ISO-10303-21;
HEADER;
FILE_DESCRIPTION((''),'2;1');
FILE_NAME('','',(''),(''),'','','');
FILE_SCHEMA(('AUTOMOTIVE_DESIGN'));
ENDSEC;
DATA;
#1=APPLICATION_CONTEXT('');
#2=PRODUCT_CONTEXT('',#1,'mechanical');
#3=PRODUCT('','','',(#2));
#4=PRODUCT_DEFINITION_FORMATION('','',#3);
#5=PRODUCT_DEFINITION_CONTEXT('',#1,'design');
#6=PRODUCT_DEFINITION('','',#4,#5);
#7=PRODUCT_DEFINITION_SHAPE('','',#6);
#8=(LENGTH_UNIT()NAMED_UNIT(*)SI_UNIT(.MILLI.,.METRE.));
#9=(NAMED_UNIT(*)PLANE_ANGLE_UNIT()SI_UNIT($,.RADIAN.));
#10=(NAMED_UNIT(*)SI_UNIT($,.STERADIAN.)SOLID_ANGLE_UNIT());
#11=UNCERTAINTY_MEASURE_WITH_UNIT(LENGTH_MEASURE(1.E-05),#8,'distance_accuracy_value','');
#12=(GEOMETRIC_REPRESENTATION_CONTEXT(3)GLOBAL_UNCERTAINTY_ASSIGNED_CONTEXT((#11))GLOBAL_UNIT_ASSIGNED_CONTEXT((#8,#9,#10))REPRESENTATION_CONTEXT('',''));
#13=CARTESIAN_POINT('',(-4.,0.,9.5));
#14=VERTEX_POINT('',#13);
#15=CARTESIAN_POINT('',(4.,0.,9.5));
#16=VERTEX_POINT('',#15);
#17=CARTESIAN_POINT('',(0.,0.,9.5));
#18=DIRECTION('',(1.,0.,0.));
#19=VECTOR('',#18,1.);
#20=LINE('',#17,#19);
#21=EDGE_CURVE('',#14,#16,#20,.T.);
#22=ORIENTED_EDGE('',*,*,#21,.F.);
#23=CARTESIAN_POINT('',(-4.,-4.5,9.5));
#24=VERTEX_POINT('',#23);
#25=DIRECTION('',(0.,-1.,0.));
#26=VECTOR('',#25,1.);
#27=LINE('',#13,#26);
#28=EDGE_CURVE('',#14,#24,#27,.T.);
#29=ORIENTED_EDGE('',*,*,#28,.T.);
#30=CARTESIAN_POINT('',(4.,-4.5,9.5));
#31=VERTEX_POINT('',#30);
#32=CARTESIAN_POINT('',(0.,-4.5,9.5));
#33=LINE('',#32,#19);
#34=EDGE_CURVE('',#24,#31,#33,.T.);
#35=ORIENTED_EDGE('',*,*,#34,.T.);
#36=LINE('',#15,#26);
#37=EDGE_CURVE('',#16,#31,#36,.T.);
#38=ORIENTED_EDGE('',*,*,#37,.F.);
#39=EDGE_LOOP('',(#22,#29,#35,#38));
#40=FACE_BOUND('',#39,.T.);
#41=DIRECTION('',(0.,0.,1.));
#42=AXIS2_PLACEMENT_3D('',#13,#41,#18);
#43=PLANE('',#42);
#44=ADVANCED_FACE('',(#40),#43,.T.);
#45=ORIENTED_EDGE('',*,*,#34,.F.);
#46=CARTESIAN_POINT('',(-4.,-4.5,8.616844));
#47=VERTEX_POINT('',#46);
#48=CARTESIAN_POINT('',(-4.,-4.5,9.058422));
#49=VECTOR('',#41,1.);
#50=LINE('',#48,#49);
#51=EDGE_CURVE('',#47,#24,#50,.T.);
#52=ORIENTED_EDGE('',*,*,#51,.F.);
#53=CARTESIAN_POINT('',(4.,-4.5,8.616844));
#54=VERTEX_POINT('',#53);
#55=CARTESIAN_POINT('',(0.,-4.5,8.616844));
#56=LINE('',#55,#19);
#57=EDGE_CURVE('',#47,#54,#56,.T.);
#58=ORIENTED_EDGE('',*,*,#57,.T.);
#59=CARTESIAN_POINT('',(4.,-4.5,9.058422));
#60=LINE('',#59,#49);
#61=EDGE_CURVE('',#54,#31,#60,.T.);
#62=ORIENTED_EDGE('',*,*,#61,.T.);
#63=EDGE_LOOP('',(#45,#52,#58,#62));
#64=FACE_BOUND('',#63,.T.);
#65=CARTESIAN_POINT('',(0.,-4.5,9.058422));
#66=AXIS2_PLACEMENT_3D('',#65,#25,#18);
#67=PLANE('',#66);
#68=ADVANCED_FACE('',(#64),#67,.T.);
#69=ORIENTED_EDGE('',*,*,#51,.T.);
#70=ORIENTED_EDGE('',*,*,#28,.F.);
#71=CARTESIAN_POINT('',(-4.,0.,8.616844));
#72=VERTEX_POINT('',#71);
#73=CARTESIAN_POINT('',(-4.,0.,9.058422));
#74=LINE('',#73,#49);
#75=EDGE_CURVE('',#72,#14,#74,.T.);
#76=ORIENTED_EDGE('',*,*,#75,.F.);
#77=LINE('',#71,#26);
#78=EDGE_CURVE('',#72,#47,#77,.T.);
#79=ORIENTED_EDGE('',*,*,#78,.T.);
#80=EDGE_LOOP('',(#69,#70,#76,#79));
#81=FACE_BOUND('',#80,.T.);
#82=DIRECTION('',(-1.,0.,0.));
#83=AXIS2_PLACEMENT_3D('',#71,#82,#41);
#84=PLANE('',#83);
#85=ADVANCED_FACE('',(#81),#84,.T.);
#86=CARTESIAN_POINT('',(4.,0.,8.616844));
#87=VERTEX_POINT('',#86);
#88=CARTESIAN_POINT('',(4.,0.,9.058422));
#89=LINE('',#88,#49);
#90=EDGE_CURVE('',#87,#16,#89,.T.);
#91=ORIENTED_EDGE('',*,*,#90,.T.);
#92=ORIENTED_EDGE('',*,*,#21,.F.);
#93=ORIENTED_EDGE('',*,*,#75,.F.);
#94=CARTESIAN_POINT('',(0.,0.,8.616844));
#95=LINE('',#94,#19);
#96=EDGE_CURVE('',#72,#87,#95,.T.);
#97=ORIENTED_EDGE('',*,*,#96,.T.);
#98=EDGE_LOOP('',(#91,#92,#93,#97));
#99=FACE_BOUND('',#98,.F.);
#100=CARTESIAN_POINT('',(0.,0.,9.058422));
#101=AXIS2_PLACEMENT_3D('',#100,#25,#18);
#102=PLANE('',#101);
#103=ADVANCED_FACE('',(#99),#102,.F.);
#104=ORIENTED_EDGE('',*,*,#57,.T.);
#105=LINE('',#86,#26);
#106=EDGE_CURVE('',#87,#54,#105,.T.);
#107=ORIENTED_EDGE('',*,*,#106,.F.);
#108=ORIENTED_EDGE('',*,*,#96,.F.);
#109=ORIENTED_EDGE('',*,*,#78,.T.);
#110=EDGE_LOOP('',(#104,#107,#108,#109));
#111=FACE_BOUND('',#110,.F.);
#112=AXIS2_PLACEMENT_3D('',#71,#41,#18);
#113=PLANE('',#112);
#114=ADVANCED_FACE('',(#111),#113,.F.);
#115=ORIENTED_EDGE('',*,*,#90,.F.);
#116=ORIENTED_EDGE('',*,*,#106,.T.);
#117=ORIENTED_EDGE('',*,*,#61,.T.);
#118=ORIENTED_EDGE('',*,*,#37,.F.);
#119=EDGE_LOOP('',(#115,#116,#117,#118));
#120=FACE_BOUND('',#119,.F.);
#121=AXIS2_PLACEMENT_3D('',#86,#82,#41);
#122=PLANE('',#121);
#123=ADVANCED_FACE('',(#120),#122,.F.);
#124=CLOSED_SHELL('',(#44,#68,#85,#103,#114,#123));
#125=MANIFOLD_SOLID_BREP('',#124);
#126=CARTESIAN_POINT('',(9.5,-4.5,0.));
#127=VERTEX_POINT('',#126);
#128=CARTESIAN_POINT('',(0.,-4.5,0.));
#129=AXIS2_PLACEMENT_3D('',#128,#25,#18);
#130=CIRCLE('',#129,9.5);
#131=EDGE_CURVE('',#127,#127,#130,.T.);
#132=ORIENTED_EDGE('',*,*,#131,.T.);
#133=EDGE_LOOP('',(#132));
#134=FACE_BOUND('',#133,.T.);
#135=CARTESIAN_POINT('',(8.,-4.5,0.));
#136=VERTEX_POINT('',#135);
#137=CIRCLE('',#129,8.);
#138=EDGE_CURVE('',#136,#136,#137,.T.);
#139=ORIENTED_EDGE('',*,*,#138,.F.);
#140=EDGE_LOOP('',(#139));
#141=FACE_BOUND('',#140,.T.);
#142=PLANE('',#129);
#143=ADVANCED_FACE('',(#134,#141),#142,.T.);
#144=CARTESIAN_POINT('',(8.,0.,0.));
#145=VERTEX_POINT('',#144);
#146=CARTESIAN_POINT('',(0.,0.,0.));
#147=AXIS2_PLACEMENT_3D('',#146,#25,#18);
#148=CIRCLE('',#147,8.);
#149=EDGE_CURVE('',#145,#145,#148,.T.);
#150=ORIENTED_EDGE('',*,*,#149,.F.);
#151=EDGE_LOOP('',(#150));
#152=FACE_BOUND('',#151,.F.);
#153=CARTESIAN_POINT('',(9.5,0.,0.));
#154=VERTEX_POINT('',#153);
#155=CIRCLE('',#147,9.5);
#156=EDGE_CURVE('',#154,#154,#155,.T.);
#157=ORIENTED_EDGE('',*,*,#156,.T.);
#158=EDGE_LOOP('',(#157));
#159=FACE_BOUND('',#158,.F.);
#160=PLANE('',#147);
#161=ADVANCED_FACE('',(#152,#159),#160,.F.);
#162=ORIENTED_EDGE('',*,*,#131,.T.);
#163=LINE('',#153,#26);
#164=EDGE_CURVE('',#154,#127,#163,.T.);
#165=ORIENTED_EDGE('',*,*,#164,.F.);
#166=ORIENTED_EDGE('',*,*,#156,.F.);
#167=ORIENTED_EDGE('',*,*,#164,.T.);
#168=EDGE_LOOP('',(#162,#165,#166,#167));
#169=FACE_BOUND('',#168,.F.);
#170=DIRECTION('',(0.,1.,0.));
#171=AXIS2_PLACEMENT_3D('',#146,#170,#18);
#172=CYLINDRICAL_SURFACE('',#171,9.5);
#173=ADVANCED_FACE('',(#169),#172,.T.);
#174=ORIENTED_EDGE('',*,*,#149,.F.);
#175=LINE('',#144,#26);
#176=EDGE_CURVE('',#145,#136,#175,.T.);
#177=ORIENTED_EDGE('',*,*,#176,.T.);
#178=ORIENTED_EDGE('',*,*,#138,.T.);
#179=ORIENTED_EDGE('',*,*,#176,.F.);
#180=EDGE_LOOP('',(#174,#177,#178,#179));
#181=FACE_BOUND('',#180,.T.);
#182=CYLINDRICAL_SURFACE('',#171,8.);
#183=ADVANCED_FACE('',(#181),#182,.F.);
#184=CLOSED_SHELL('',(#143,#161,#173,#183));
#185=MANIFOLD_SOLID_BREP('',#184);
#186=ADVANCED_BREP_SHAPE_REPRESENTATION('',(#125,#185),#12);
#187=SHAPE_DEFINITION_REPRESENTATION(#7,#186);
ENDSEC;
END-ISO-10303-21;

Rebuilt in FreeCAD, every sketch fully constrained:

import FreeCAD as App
import Part
import Sketcher

V = App.Vector

doc = App.newDocument("Part")
params = doc.addObject("Spreadsheet::Sheet", "Params")
for row, (alias, value) in enumerate([
    ("sketch1_diameter", "19 mm"),
    ("sketch1_diameter2", "16 mm"),
    ("pad1_length", "4.5 mm"),
    ("sketch2_width", "8 mm"),
    ("pad2_length", "4.5 mm"),
], start=1):
    params.set(f"A{row}", alias)
    params.set(f"B{row}", "=" + value)
    params.setAlias(f"B{row}", alias)

body = doc.addObject("PartDesign::Body", "Body")

sketch1 = body.newObject("Sketcher::SketchObject", "Sketch")
sketch1.AttachmentSupport = (doc.getObject("XZ_Plane"), [""])
sketch1.MapMode = "FlatFace"
sketch1.addGeometry([
    Part.Circle(V(0, 0, 0), V(0, 0, 1), 10),
    Part.Circle(V(0, 0, 0), V(0, 0, 1), 8),
], False)
sketch1.addConstraint([
    Sketcher.Constraint("Coincident", 0, 3, -1, 1),
    Sketcher.Constraint("Coincident", 1, 3, -1, 1),
    Sketcher.Constraint("Diameter", 0, 19.0),
    Sketcher.Constraint("Diameter", 1, 16.0),
])
sketch1.setExpression("Constraints[2]", "Params.sketch1_diameter")
sketch1.setExpression("Constraints[3]", "Params.sketch1_diameter2")
pad1 = body.newObject("PartDesign::Pad", "Pad")
pad1.Profile = sketch1
pad1.setExpression("Length", "Params.pad1_length")
body2 = doc.addObject("PartDesign::Body", "Body001")

sketch2 = body2.newObject("Sketcher::SketchObject", "Sketch001")
sketch2.AttachmentSupport = (doc.getObject("XZ_Plane001"), [""])
sketch2.MapMode = "FlatFace"
sketch2.addGeometry([
    Part.LineSegment(V(-4, 9.5, 0), V(-4, 8.6, 0)),
    Part.LineSegment(V(-4, 8.6, 0), V(4, 8.6, 0)),
    Part.LineSegment(V(4, 8.6, 0), V(4, 9.5, 0)),
    Part.LineSegment(V(4, 9.5, 0), V(-4, 9.5, 0)),
], False)
sketch2.addConstraint([
    Sketcher.Constraint("Coincident", 0, 2, 1, 1),
    Sketcher.Constraint("Coincident", 1, 2, 2, 1),
    Sketcher.Constraint("Coincident", 2, 2, 3, 1),
    Sketcher.Constraint("Coincident", 3, 2, 0, 1),
    Sketcher.Constraint("Vertical", 0),
    Sketcher.Constraint("Horizontal", 1),
    Sketcher.Constraint("Vertical", 2),
    Sketcher.Constraint("Horizontal", 3),
    Sketcher.Constraint("DistanceX", 1, 1, 1, 2, 8.0),
    Sketcher.Constraint("DistanceX", 0, 2, -1, 1, 4.0),
    Sketcher.Constraint("DistanceY", -1, 1, 2, 2, 9.5),
    Sketcher.Constraint("DistanceY", 0, 2, 0, 1, 0.883156),
])
sketch2.setExpression("Constraints[8]", "Params.sketch2_width")
pad2 = body2.newObject("PartDesign::Pad", "Pad001")
pad2.Profile = sketch2
pad2.setExpression("Length", "Params.pad2_length")

doc.recompute()
